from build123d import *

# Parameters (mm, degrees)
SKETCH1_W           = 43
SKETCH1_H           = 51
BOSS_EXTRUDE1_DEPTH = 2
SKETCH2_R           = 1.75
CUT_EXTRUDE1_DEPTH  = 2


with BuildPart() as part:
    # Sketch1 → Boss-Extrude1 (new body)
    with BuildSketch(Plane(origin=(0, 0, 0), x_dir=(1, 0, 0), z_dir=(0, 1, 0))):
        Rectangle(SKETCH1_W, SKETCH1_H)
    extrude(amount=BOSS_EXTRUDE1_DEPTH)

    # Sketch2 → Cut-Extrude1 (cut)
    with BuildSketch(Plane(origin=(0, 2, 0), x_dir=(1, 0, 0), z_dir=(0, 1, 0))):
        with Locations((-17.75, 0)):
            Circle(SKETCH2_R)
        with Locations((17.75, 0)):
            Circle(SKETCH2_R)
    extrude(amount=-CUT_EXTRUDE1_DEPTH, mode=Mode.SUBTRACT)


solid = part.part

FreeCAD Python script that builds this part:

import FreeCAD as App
import Part
import Sketcher

V = App.Vector


def add_polygon(sketch, points):
    """Adds a closed chain of lines whose ends are joined by coincident constraints."""
    first, n = sketch.GeometryCount, len(points)
    for a, b in zip(points, points[1:] + points[:1]):
        sketch.addGeometry(Part.LineSegment(App.Vector(*a, 0), App.Vector(*b, 0)), False)
    for i in range(n):
        sketch.addConstraint(Sketcher.Constraint("Coincident", first + i, 2, first + (i + 1) % n, 1))

doc = App.newDocument("Part")
body = doc.addObject("PartDesign::Body", "Body")

# Sketch on XZ plane
sketch1 = body.newObject("Sketcher::SketchObject", "Sketch")
sketch1.AttachmentSupport = (doc.getObject("XZ_Plane"), [""])
sketch1.MapMode = "FlatFace"
add_polygon(sketch1, [(-21.5, -25.5), (-21.5, 25.5), (21.5, 25.5), (21.5, -25.5)])  # lines 0-3
sketch1.addConstraint(Sketcher.Constraint("Vertical", 0))
sketch1.addConstraint(Sketcher.Constraint("Horizontal", 1))
sketch1.addConstraint(Sketcher.Constraint("Vertical", 2))
sketch1.addConstraint(Sketcher.Constraint("Horizontal", 3))
sketch1.addConstraint(Sketcher.Constraint("Symmetric", 0, 2, 2, 2, -1, 1))
sketch1.addConstraint(Sketcher.Constraint("DistanceX", 1, 1, 1, 2, 43.0))
sketch1.addConstraint(Sketcher.Constraint("DistanceY", 0, 1, 0, 2, 51.0))
pad1 = body.newObject("PartDesign::Pad", "Pad")
pad1.Profile = sketch1
pad1.Length = 2
pad1.Reversed = True

# Sketch on XZ plane
sketch2 = body.newObject("Sketcher::SketchObject", "Sketch001")
sketch2.AttachmentSupport = (doc.getObject("XZ_Plane"), [""])
sketch2.MapMode = "FlatFace"
sketch2.AttachmentOffset = App.Placement(V(0, 0, -2), App.Rotation())
sketch2.addGeometry(Part.Circle(V(-17.75, 0, 0), V(0, 0, 1), 1.75), False)
sketch2.addGeometry(Part.Circle(V(17.75, 0, 0), V(0, 0, 1), 1.75), False)
sketch2.addConstraint(Sketcher.Constraint("Equal", 0, 1))
sketch2.addConstraint(Sketcher.Constraint("Symmetric", 0, 3, 1, 3, -1, 1))
sketch2.addConstraint(Sketcher.Constraint("PointOnObject", 0, 3, -1))
sketch2.addConstraint(Sketcher.Constraint("Diameter", 0, 3.5))
sketch2.addConstraint(Sketcher.Constraint("DistanceX", 0, 3, 1, 3, 35.5))
pocket1 = body.newObject("PartDesign::Pocket", "Pocket")
pocket1.Profile = sketch2
pocket1.Length = 2
pocket1.Reversed = True

doc.recompute()
